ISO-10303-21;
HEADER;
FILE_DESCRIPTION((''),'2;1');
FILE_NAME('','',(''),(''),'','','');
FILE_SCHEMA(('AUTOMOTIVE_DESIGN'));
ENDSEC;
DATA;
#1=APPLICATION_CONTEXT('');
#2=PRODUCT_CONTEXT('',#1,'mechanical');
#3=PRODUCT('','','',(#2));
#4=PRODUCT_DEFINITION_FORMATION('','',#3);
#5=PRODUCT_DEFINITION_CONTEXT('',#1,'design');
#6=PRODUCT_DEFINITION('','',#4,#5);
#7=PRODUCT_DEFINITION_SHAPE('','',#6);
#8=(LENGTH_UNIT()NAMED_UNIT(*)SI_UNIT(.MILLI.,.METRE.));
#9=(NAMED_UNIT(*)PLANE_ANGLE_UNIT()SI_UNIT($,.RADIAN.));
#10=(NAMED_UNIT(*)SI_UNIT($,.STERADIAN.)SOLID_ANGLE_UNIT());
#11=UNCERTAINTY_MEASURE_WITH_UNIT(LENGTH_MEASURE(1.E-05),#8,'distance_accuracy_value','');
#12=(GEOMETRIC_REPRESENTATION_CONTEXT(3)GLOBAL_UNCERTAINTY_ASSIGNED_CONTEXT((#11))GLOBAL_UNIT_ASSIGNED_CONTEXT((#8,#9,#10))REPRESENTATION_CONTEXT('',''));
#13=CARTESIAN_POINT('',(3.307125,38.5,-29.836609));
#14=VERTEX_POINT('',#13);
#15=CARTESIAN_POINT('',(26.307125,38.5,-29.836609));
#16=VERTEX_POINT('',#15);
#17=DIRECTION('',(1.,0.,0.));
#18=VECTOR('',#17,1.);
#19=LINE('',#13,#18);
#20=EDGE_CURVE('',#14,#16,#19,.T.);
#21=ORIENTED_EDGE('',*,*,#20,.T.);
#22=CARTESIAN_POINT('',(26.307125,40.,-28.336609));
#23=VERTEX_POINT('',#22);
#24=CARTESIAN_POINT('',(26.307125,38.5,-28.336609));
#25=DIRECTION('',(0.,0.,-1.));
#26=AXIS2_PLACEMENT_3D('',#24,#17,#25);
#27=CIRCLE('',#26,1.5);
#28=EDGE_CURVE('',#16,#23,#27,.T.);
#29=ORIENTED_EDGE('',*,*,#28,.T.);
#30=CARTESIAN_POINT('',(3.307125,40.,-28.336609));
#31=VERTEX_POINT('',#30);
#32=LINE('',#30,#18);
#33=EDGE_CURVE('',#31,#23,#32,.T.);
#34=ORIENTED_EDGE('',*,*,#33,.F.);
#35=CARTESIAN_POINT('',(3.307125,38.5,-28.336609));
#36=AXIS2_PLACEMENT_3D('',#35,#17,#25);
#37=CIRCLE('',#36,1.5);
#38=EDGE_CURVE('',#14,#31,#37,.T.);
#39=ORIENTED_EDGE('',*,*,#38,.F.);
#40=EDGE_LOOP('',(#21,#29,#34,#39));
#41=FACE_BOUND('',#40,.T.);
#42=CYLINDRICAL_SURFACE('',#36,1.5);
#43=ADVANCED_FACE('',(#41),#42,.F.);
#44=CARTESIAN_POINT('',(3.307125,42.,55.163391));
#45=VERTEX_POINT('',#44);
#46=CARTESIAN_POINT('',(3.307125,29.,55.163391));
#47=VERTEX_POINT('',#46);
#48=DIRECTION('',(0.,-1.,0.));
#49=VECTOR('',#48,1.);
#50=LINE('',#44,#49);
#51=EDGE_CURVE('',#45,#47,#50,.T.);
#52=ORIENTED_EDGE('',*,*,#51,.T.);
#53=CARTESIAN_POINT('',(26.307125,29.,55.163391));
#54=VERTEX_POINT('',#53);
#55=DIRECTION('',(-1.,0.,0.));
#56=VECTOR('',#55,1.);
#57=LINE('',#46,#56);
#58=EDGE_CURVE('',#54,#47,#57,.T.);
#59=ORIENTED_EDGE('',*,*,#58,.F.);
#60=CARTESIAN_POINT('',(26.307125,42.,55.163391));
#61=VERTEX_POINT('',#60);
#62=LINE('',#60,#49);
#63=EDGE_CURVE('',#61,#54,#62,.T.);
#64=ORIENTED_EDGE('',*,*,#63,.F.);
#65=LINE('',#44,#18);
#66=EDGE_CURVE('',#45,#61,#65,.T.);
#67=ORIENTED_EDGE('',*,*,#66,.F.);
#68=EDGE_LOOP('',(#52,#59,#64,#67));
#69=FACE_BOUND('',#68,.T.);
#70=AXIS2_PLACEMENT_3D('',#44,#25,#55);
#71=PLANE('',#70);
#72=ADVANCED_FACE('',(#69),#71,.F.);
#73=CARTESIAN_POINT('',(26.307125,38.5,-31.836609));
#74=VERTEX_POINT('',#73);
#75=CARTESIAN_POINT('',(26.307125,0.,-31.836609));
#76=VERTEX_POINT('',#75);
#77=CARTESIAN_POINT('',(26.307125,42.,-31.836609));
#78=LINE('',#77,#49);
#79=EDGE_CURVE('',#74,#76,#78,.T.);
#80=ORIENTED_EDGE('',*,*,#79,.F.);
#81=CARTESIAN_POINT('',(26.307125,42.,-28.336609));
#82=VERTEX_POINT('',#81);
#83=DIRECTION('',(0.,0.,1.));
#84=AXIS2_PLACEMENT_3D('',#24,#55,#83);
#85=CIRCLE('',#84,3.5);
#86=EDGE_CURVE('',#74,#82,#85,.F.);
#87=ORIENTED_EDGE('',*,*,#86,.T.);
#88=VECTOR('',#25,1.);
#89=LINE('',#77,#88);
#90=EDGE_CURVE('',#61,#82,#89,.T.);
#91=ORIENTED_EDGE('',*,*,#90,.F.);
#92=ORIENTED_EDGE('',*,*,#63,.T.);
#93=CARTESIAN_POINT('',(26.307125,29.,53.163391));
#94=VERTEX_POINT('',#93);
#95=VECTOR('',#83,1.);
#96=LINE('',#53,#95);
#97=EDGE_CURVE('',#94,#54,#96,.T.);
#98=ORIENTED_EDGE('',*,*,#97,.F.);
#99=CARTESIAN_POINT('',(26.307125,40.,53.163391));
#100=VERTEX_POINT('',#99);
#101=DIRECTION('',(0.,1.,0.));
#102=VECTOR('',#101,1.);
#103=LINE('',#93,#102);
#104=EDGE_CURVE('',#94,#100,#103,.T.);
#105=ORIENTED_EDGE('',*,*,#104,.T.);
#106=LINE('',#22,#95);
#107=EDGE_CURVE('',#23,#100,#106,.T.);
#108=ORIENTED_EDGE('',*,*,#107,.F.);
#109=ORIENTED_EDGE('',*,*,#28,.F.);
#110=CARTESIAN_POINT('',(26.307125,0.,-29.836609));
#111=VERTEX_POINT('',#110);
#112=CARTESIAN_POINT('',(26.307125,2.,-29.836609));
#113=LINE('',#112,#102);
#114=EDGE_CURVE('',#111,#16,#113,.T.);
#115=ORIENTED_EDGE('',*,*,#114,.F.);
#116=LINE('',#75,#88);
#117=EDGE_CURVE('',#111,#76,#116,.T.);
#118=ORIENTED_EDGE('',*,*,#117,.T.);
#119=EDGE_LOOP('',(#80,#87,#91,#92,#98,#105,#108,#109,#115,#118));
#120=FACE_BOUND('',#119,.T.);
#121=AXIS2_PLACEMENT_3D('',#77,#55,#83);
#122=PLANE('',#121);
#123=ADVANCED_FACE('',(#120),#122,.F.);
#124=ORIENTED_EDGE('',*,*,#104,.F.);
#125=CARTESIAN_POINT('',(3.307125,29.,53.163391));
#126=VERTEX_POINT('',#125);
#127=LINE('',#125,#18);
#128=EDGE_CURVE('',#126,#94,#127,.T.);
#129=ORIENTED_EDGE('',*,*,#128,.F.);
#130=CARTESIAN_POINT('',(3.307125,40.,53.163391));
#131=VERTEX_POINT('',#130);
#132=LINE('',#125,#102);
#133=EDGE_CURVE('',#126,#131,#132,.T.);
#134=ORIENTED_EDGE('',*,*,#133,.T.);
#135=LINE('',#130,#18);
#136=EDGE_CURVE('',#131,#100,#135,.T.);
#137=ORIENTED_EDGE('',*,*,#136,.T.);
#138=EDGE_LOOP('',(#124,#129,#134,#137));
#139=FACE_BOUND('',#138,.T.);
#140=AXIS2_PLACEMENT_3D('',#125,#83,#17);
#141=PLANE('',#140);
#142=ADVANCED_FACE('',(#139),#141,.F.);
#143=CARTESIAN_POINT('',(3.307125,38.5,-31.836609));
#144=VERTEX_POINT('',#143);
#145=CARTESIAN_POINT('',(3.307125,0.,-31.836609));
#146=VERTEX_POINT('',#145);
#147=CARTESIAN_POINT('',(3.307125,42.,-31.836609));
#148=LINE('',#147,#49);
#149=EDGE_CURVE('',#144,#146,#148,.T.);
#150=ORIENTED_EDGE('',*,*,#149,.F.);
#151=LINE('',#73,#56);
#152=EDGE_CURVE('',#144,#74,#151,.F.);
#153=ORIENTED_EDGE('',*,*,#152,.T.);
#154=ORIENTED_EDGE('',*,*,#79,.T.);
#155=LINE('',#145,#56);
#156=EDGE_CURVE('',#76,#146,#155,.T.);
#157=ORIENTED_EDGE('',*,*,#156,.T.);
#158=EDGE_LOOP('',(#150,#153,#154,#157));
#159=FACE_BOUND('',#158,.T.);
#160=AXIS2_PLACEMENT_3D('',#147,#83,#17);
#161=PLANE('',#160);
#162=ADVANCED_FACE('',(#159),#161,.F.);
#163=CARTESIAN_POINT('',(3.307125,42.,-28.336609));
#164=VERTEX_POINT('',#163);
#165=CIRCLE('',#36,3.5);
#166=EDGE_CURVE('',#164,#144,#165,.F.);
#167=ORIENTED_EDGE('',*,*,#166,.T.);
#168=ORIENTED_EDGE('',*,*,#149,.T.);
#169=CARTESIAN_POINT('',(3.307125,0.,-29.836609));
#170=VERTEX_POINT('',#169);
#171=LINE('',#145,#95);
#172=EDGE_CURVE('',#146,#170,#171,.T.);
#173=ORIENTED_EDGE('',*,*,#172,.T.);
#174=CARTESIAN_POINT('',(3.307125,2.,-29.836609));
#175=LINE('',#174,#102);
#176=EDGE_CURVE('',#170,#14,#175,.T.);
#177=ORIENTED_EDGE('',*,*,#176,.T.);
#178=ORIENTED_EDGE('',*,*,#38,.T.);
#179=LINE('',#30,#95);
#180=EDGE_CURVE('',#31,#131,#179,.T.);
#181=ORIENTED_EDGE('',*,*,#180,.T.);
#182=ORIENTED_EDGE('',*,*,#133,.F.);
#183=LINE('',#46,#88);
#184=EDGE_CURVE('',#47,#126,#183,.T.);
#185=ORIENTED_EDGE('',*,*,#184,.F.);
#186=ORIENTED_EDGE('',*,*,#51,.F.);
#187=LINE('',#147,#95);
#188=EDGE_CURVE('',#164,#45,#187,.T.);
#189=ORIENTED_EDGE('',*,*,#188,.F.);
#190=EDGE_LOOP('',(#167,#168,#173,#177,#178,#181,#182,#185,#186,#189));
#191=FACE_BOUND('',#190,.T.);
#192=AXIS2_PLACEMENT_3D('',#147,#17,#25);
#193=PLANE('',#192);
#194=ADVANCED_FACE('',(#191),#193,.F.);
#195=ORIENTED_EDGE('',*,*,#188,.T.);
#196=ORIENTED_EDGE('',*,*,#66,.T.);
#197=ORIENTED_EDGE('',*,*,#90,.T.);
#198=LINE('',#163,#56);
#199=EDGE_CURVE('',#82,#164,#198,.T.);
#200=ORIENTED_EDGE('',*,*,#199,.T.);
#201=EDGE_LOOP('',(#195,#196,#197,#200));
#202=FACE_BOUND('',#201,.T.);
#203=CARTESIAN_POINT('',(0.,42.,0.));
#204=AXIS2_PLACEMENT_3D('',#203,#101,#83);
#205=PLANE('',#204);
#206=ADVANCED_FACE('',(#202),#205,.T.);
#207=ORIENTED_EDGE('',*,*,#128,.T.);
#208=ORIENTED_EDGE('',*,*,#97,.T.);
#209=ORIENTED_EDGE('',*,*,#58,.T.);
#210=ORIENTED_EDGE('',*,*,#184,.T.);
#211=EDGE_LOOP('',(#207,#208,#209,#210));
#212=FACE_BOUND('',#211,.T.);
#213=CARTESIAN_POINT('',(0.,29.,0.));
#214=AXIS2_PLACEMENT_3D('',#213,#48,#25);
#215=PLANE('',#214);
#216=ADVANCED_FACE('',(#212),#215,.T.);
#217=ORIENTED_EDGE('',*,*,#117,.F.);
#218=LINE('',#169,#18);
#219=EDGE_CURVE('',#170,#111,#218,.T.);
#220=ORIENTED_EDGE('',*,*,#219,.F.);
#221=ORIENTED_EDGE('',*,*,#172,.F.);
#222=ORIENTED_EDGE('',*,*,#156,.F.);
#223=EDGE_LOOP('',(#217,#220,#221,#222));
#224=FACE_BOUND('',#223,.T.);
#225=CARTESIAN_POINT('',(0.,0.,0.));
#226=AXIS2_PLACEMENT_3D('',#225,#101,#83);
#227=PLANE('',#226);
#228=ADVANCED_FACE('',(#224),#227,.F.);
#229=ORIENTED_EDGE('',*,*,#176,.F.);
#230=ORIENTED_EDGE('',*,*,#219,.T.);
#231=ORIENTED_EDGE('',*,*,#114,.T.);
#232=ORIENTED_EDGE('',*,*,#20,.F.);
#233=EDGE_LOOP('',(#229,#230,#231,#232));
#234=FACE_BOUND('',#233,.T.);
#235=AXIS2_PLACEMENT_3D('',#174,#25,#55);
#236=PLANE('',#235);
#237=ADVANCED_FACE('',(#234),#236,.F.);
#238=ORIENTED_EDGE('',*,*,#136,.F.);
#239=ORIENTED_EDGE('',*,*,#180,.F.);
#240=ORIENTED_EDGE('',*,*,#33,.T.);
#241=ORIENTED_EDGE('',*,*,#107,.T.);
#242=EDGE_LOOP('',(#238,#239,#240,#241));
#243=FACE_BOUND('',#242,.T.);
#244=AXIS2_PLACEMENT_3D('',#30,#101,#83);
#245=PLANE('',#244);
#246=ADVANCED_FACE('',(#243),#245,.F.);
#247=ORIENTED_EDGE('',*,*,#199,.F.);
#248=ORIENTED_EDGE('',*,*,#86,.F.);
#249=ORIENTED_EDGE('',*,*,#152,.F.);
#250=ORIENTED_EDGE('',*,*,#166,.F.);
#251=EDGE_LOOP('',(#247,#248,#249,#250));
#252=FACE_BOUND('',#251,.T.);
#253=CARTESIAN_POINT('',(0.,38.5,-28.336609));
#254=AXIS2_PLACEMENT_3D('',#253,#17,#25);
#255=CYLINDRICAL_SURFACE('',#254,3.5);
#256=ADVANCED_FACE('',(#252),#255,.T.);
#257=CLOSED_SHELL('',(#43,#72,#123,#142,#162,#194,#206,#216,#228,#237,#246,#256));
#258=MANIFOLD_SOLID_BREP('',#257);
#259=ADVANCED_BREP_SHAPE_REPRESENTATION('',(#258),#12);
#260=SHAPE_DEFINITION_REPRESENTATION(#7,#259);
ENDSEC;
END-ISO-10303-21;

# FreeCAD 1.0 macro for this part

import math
import FreeCAD as App
import Part
import Sketcher
from FreeCAD import Vector
Q = App.Units.Quantity


def edges_at(feature, points):
    """Names of the edges that pass closest to the given points."""
    edges = feature.Shape.Edges
    near = lambda p: min(range(len(edges)), key=lambda i: edges[i].distToShape(Part.Vertex(*p))[0])
    return sorted({f"Edge{near(p) + 1}" for p in points})


def add_polygon(sketch, points):
    """Adds a closed chain of lines whose ends are joined by coincident constraints."""
    first, n = sketch.GeometryCount, len(points)
    for a, b in zip(points, points[1:] + points[:1]):
        sketch.addGeometry(Part.LineSegment(App.Vector(*a, 0), App.Vector(*b, 0)), False)
    for i in range(n):
        sketch.addConstraint(Sketcher.Constraint("Coincident", first + i, 2, first + (i + 1) % n, 1))

doc = App.newDocument("Part")
body = doc.addObject("PartDesign::Body", "Body")

sketch1 = body.newObject("Sketcher::SketchObject", "Sketch")
sketch1.AttachmentSupport = (doc.getObject("XZ_Plane"), [""])
sketch1.MapMode = "FlatFace"
add_polygon(sketch1, [(3, -32), (3, 55), (26, 55), (26, -32)])
sketch1.addConstraint([
    Sketcher.Constraint("Vertical", 0),
    Sketcher.Constraint("Horizontal", 1),
    Sketcher.Constraint("Vertical", 2),
    Sketcher.Constraint("Horizontal", 3),
    Sketcher.Constraint("DistanceX", 1, 1, 1, 2, Q("23 mm")),
    Sketcher.Constraint("DistanceY", 0, 1, 0, 2, Q("87 mm")),
    Sketcher.Constraint("DistanceY", -1, 1, 0, 2, Q("55.163391 mm")),
    Sketcher.Constraint("DistanceX", -1, 1, 0, 2, Q("3.307125 mm")),
])
pad1 = body.newObject("PartDesign::Pad", "Pad")
pad1.Profile = sketch1
pad1.Length = 42
pad1.Reversed = True
doc.recompute()

fillet = body.newObject("PartDesign::Fillet", "Fillet")
fillet.Base = (pad1, edges_at(pad1, [(14.807, 42, -31.837)]))
fillet.Radius = 3.5

sketch2 = body.newObject("Sketcher::SketchObject", "Sketch001")
sketch2.AttachmentSupport = (doc.getObject("YZ_Plane"), [""])
sketch2.MapMode = "FlatFace"
sketch2.AttachmentOffset = App.Placement(Vector(0, 0, 26.307125), App.Rotation())
sketch2.addGeometry([
    Part.LineSegment(Vector(2, -29.8, 0), Vector(38.5, -29.8, 0)),
    Part.ArcOfCircle(Part.Circle(Vector(38.5, -28.3, 0), Vector(0, 0, 1), 1.5), math.radians(-90), math.radians(0)),
    Part.LineSegment(Vector(40, -28.3, 0), Vector(40, 53.2, 0)),
    Part.LineSegment(Vector(40, 53.2, 0), Vector(2, 53.2, 0)),
    Part.LineSegment(Vector(2, 53.2, 0), Vector(2, -29.8, 0)),
], False)
sketch2.addConstraint([
    Sketcher.Constraint("Tangent", 0, 2, 1, 1),
    Sketcher.Constraint("Tangent", 1, 2, 2, 1),
    Sketcher.Constraint("Coincident", 2, 2, 3, 1),
    Sketcher.Constraint("Coincident", 3, 2, 4, 1),
    Sketcher.Constraint("Coincident", 4, 2, 0, 1),
    Sketcher.Constraint("Horizontal", 0),
    Sketcher.Constraint("Vertical", 2),
    Sketcher.Constraint("Horizontal", 3),
    Sketcher.Constraint("Vertical", 4),
    Sketcher.Constraint("Radius", 1, Q("1.5 mm")),
    Sketcher.Constraint("DistanceX", 3, 2, 3, 1, Q("38 mm")),
    Sketcher.Constraint("DistanceY", 4, 2, 4, 1, Q("83 mm")),
    Sketcher.Constraint("DistanceX", -1, 1, 1, 2, Q("40 mm")),
    Sketcher.Constraint("DistanceY", 1, 3, -1, 1, Q("28.336609 mm")),
])
pocket1 = body.newObject("PartDesign::Pocket", "Pocket")
pocket1.Profile = sketch2
pocket1.Type = "ThroughAll"

sketch3 = body.newObject("Sketcher::SketchObject", "Sketch002")
sketch3.AttachmentSupport = (doc.getObject("YZ_Plane"), [""])
sketch3.MapMode = "FlatFace"
sketch3.AttachmentOffset = App.Placement(Vector(0, 0, 26.307125), App.Rotation())
add_polygon(sketch3, [(40, 55.2), (0, 55.2), (0, 53.2), (40, 53.2)])
sketch3.addConstraint([
    Sketcher.Constraint("Horizontal", 0),
    Sketcher.Constraint("Vertical", 1),
    Sketcher.Constraint("Horizontal", 2),
    Sketcher.Constraint("Vertical", 3),
    Sketcher.Constraint("PointOnObject", 0, 2, -2),
    Sketcher.Constraint("DistanceX", 0, 2, 0, 1, Q("40 mm")),
    Sketcher.Constraint("DistanceY", 1, 2, 1, 1, Q("2 mm")),
    Sketcher.Constraint("DistanceY", -1, 1, 0, 2, Q("55.163391 mm")),
])
pocket2 = body.newObject("PartDesign::Pocket", "Pocket001")
pocket2.Profile = sketch3
pocket2.Type = "ThroughAll"

sketch4 = body.newObject("Sketcher::SketchObject", "Sketch003")
sketch4.AttachmentSupport = (doc.getObject("YZ_Plane"), [""])
sketch4.MapMode = "FlatFace"
sketch4.AttachmentOffset = App.Placement(Vector(0, 0, 26.307125), App.Rotation())
add_polygon(sketch4, [(2, 53.2), (0, 53.2), (0, -29.8), (2, -29.8)])
sketch4.addConstraint([
    Sketcher.Constraint("Horizontal", 0),
    Sketcher.Constraint("Vertical", 1),
    Sketcher.Constraint("Horizontal", 2),
    Sketcher.Constraint("Vertical", 3),
    Sketcher.Constraint("PointOnObject", 0, 2, -2),
    Sketcher.Constraint("DistanceX", 0, 2, 0, 1, Q("2 mm")),
    Sketcher.Constraint("DistanceY", 1, 2, 1, 1, Q("83 mm")),
    Sketcher.Constraint("DistanceY", -1, 1, 0, 2, Q("53.163391 mm")),
])
pocket3 = body.newObject("PartDesign::Pocket", "Pocket002")
pocket3.Profile = sketch4
pocket3.Type = "ThroughAll"

sketch5 = body.newObject("Sketcher::SketchObject", "Sketch004")
sketch5.AttachmentSupport = (doc.getObject("XZ_Plane"), [""])
sketch5.MapMode = "FlatFace"
sketch5.AttachmentOffset = App.Placement(Vector(0, 0, -40), App.Rotation())
add_polygon(sketch5, [(3.3, 55.2), (3.3, 53.2), (26.3, 53.2), (26.3, 55.2)])
sketch5.addConstraint([
    Sketcher.Constraint("Vertical", 0),
    Sketcher.Constraint("Horizontal", 1),
    Sketcher.Constraint("Vertical", 2),
    Sketcher.Constraint("Horizontal", 3),
    Sketcher.Constraint("DistanceX", 1, 1, 1, 2, Q("23 mm")),
    Sketcher.Constraint("DistanceY", 0, 2, 0, 1, Q("2 mm")),
    Sketcher.Constraint("DistanceY", -1, 1, 0, 2, Q("53.163391 mm")),
    Sketcher.Constraint("DistanceX", -1, 1, 0, 2, Q("3.307125 mm")),
])
pad2 = body.newObject("PartDesign::Pad", "Pad001")
pad2.Profile = sketch5
pad2.Length = 11

doc.recompute()
